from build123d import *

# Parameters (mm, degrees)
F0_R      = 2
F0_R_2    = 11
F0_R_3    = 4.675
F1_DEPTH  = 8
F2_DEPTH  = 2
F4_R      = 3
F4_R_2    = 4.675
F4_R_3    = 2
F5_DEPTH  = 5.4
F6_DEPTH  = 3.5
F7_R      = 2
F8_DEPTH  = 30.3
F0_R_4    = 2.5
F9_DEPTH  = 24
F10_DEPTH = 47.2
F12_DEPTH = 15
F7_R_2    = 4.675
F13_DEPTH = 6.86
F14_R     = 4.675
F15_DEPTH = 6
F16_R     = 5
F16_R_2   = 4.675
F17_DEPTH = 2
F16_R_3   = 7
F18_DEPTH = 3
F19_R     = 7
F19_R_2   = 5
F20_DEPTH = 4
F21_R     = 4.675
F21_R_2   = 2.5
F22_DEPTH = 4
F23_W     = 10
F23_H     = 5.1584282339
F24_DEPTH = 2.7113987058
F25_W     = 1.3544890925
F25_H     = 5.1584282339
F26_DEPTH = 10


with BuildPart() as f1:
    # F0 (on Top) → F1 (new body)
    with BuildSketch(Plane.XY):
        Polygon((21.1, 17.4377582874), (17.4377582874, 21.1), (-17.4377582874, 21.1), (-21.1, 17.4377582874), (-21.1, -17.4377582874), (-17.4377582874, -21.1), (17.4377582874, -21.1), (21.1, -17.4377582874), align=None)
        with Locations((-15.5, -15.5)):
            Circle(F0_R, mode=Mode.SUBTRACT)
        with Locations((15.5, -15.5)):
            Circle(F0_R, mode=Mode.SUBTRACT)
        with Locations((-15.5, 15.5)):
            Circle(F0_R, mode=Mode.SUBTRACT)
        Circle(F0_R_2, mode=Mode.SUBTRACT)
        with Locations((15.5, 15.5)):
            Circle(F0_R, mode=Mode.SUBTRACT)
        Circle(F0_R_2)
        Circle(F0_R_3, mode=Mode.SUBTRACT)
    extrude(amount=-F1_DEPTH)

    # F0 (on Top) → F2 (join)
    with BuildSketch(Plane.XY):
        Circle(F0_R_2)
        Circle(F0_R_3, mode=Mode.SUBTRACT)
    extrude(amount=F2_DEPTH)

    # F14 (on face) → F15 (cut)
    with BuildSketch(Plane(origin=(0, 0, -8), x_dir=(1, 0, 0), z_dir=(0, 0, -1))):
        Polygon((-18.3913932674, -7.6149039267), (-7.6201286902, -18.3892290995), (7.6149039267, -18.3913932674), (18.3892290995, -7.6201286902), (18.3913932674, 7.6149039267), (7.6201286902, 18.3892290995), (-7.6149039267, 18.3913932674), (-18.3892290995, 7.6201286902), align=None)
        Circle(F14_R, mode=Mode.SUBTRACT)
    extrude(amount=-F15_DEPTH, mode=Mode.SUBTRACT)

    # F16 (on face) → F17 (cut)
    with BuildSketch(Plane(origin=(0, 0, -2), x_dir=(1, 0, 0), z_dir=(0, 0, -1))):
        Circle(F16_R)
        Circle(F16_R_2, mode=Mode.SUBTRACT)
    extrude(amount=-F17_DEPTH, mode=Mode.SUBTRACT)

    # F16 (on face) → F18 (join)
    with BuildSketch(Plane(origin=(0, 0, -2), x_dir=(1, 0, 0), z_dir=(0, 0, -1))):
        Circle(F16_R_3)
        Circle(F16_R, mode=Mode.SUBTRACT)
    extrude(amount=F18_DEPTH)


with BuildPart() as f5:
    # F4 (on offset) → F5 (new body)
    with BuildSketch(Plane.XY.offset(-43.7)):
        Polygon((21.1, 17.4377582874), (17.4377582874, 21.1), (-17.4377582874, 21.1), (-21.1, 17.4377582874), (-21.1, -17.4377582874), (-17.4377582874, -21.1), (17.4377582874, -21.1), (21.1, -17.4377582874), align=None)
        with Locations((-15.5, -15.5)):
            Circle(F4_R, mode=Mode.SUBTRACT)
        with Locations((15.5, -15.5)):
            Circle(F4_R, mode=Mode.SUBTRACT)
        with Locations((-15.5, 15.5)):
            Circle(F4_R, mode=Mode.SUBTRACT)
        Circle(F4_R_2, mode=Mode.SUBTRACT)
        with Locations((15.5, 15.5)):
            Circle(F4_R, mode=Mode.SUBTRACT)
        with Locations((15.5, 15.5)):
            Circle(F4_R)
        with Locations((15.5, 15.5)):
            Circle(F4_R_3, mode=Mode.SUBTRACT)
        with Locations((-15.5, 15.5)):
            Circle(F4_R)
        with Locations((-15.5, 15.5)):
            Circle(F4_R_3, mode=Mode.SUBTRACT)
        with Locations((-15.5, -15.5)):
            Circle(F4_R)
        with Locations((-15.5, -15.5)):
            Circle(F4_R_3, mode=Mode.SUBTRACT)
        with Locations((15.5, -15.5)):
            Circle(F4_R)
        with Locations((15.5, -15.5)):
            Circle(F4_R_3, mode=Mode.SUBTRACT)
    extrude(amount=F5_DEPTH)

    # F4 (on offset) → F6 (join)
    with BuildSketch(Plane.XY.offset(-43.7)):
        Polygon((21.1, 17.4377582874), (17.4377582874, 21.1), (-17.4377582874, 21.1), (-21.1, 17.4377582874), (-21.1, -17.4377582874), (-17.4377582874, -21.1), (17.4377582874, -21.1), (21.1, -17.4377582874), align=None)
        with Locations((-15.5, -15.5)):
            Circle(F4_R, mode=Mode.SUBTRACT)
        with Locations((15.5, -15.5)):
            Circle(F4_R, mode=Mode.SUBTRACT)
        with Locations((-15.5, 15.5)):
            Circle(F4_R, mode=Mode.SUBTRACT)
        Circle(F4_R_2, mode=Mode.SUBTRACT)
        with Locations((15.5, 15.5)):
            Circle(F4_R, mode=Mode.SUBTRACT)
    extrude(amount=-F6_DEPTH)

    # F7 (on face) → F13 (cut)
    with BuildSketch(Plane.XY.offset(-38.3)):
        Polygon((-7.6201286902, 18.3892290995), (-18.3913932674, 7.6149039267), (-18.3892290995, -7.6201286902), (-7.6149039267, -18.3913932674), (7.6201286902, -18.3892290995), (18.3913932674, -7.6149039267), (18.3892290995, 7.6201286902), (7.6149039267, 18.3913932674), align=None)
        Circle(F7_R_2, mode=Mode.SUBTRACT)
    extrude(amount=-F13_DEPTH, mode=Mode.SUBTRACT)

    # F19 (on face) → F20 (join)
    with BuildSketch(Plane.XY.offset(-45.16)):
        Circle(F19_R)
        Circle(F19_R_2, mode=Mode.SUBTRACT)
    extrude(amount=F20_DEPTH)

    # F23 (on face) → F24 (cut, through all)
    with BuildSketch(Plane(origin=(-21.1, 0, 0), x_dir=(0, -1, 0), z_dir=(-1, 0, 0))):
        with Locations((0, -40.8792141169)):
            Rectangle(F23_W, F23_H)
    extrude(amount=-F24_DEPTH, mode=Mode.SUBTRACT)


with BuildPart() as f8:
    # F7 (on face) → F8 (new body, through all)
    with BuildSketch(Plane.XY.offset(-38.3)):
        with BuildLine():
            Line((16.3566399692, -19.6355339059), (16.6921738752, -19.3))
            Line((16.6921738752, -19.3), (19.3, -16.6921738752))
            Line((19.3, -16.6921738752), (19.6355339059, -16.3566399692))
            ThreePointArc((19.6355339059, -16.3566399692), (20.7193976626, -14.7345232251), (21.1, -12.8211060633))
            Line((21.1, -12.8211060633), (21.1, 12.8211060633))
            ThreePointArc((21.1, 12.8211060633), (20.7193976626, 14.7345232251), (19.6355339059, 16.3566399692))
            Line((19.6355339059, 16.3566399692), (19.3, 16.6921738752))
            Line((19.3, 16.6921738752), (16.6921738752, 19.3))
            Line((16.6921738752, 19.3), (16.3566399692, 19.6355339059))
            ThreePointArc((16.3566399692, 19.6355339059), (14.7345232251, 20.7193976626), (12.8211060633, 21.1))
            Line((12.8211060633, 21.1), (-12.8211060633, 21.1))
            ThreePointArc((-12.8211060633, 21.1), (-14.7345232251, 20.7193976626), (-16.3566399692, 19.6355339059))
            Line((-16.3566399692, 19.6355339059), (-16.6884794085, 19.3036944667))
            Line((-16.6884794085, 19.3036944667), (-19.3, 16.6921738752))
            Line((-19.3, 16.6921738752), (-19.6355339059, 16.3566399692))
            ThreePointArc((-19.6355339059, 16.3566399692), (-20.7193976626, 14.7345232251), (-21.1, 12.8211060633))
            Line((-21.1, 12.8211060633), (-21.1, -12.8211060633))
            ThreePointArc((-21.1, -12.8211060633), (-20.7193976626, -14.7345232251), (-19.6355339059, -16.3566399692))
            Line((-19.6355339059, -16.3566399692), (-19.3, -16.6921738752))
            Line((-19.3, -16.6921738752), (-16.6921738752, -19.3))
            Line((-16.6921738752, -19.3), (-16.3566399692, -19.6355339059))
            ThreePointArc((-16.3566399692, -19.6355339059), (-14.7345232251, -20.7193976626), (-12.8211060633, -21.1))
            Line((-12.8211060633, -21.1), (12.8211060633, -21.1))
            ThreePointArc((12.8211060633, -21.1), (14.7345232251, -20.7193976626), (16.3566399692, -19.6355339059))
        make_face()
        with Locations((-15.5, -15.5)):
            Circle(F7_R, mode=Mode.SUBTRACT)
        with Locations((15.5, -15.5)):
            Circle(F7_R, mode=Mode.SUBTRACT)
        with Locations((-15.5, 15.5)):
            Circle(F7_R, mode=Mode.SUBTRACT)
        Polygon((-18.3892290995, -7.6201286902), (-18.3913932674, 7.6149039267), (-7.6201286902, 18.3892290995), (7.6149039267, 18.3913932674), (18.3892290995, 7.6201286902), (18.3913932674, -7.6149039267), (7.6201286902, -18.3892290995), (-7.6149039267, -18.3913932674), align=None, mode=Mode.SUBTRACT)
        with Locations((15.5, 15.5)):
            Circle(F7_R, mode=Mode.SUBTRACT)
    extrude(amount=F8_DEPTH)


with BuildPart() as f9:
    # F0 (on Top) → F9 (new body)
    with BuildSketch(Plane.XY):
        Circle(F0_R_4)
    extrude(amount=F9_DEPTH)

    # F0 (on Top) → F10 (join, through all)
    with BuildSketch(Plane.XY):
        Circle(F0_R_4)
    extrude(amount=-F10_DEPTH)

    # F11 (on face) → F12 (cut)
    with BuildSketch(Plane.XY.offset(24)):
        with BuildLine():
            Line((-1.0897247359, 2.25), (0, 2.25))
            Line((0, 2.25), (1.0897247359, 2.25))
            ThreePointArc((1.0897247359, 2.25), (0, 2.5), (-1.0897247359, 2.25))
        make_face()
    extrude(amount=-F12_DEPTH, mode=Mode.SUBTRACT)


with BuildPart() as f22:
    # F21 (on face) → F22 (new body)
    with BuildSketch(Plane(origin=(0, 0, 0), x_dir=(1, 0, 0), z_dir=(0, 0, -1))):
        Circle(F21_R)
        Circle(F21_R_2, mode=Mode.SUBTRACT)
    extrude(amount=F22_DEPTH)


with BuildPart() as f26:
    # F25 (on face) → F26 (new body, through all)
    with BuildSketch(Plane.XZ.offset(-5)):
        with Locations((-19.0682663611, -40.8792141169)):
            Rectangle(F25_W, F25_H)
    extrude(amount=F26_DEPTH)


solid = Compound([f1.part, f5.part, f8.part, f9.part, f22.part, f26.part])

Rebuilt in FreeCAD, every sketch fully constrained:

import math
import FreeCAD as App
import Part
import Sketcher

V = App.Vector
Q = App.Units.Quantity


def add_polygon(sketch, points):
    """Adds a closed chain of lines whose ends are joined by coincident constraints."""
    first, n = sketch.GeometryCount, len(points)
    for a, b in zip(points, points[1:] + points[:1]):
        sketch.addGeometry(Part.LineSegment(App.Vector(*a, 0), App.Vector(*b, 0)), False)
    for i in range(n):
        sketch.addConstraint(Sketcher.Constraint("Coincident", first + i, 2, first + (i + 1) % n, 1))

doc = App.newDocument("Part")
params = doc.addObject("Spreadsheet::Sheet", "Params")
for row, (alias, value) in enumerate([
    ("sketch1_diameter", "4 mm"),
    ("sketch1_diameter2", "9.35 mm"),
    ("pad1_length", "8 mm"),
    ("sketch2_diameter", "22 mm"),
    ("sketch2_diameter2", "9.35 mm"),
    ("pad2_length", "2 mm"),
    ("sketch3_diameter", "9.35 mm"),
    ("pocket1_length", "6 mm"),
    ("sketch4_diameter", "10 mm"),
    ("sketch4_diameter2", "9.35 mm"),
    ("pocket2_length", "2 mm"),
    ("sketch5_diameter", "14 mm"),
    ("sketch5_diameter2", "10 mm"),
    ("pad3_length", "3 mm"),
    ("sketch6_diameter", "4 mm"),
    ("sketch6_diameter2", "9.35 mm"),
    ("pad4_length", "5.4 mm"),
    ("sketch7_diameter", "6 mm"),
    ("sketch7_diameter2", "9.35 mm"),
    ("pad5_length", "3.5 mm"),
    ("sketch8_diameter", "9.35 mm"),
    ("pocket3_length", "6.86 mm"),
    ("sketch9_diameter", "14 mm"),
    ("sketch9_diameter2", "10 mm"),
    ("pad6_length", "4 mm"),
    ("sketch10_width", "10 mm"),
    ("pocket4_length", "2.711399 mm"),
    ("sketch11_diameter", "4 mm"),
    ("sketch11_radius", "5 mm"),
    ("pad7_length", "30.3 mm"),
    ("sketch12_diameter", "5 mm"),
    ("pad8_length", "24 mm"),
    ("sketch13_diameter", "5 mm"),
    ("pad9_length", "47.2 mm"),
    ("sketch14_radius", "2.5 mm"),
    ("pocket5_length", "15 mm"),
    ("sketch15_diameter", "5 mm"),
    ("sketch15_diameter2", "9.35 mm"),
    ("pad10_length", "4 mm"),
    ("pad11_length", "10 mm"),
], start=1):
    params.set(f"A{row}", alias)
    params.set(f"B{row}", "=" + value)
    params.setAlias(f"B{row}", alias)

body = doc.addObject("PartDesign::Body", "Body")

# Sketch on XY plane
sketch1 = body.newObject("Sketcher::SketchObject", "Sketch")
sketch1.AttachmentSupport = (doc.getObject("XY_Plane"), [""])
sketch1.MapMode = "FlatFace"
add_polygon(sketch1, [(21.1, 17.4), (17.4, 21.1), (-17.4, 21.1), (-21.1, 17.4), (-21.1, -17.4), (-17.4, -21.1), (17.4, -21.1), (21.1, -17.4)])  # lines 0-7
sketch1.addGeometry(Part.Circle(V(-15.5, -15.5, 0), V(0, 0, 1), 2), False)  # 8
sketch1.addGeometry(Part.Circle(V(15.5, -15.5, 0), V(0, 0, 1), 2), False)  # 9
sketch1.addGeometry(Part.Circle(V(-15.5, 15.5, 0), V(0, 0, 1), 2), False)  # 10
sketch1.addGeometry(Part.Circle(V(0, 0, 0), V(0, 0, 1), 4.7), False)  # 11
sketch1.addGeometry(Part.Circle(V(15.5, 15.5, 0), V(0, 0, 1), 2), False)  # 12
sketch1.addConstraint(Sketcher.Constraint("Horizontal", 1))
sketch1.addConstraint(Sketcher.Constraint("Vertical", 3))
sketch1.addConstraint(Sketcher.Constraint("Horizontal", 5))
sketch1.addConstraint(Sketcher.Constraint("Vertical", 7))
sketch1.addConstraint(Sketcher.Constraint("Coincident", 11, 3, -1, 1))
sketch1.addConstraint(Sketcher.Constraint("Equal", 8, 9))
sketch1.addConstraint(Sketcher.Constraint("Equal", 9, 10))
sketch1.addConstraint(Sketcher.Constraint("Equal", 10, 12))
sketch1.addConstraint(Sketcher.Constraint("Symmetric", 9, 3, 10, 3, -1, 1))
sketch1.addConstraint(Sketcher.Constraint("Symmetric", 8, 3, 12, 3, -1, 1))
sketch1.addConstraint(Sketcher.Constraint("Symmetric", 0, 2, 4, 2, -1, 1))
sketch1.addConstraint(Sketcher.Constraint("Symmetric", 2, 2, 6, 2, -1, 1))
sketch1.addConstraint(Sketcher.Constraint("Symmetric", 8, 3, 9, 3, -2))
sketch1.addConstraint(Sketcher.Constraint("Perpendicular", 0, 2))
sketch1.addConstraint(Sketcher.Constraint("Perpendicular", 2, 4))
sketch1.addConstraint(Sketcher.Constraint("Perpendicular", 4, 6))
sketch1.addConstraint(Sketcher.Constraint("Horizontal", 3, 2, 6, 2))
sketch1.addConstraint(Sketcher.Constraint("Vertical", 1, 2, 4, 2))
sketch1.addConstraint(Sketcher.Constraint("Equal", 5, 3))
sketch1.addConstraint(Sketcher.Constraint("Diameter", 8, Q("4 mm")))
sketch1.addConstraint(Sketcher.Constraint("Diameter", 11, Q("9.35 mm")))
sketch1.addConstraint(Sketcher.Constraint("DistanceX", 8, 3, 9, 3, Q("31 mm")))
sketch1.addConstraint(Sketcher.Constraint("DistanceY", 8, 3, 10, 3, Q("31 mm")))
sketch1.addConstraint(Sketcher.Constraint("DistanceY", -1, 1, 0, 2, Q("21.1 mm")))
sketch1.addConstraint(Sketcher.Constraint("Distance", 0, Q("5.179192 mm")))
sketch1.setExpression("Constraints[27]", "Params.sketch1_diameter")
sketch1.setExpression("Constraints[28]", "Params.sketch1_diameter2")
pad1 = body.newObject("PartDesign::Pad", "Pad")
pad1.Profile = sketch1
pad1.setExpression("Length", "Params.pad1_length")
pad1.Reversed = True

# Sketch on XY plane
sketch2 = body.newObject("Sketcher::SketchObject", "Sketch001")
sketch2.AttachmentSupport = (doc.getObject("XY_Plane"), [""])
sketch2.MapMode = "FlatFace"
sketch2.addGeometry(Part.Circle(V(0, 0, 0), V(0, 0, 1), 11), False)
sketch2.addGeometry(Part.Circle(V(0, 0, 0), V(0, 0, 1), 4.7), False)
sketch2.addConstraint(Sketcher.Constraint("Coincident", 0, 3, -1, 1))
sketch2.addConstraint(Sketcher.Constraint("Coincident", 1, 3, -1, 1))
sketch2.addConstraint(Sketcher.Constraint("Diameter", 0, Q("22 mm")))
sketch2.addConstraint(Sketcher.Constraint("Diameter", 1, Q("9.35 mm")))
sketch2.setExpression("Constraints[2]", "Params.sketch2_diameter")
sketch2.setExpression("Constraints[3]", "Params.sketch2_diameter2")
pad2 = body.newObject("PartDesign::Pad", "Pad001")
pad2.Profile = sketch2
pad2.setExpression("Length", "Params.pad2_length")

# Sketch on XY plane
sketch3 = body.newObject("Sketcher::SketchObject", "Sketch002")
sketch3.AttachmentSupport = (doc.getObject("XY_Plane"), [""])
sketch3.MapMode = "FlatFace"
sketch3.AttachmentOffset = App.Placement(V(0, 0, -8), App.Rotation())
add_polygon(sketch3, [(-18.4, 7.6), (-7.6, 18.4), (7.6, 18.4), (18.4, 7.6), (18.4, -7.6), (7.6, -18.4), (-7.6, -18.4), (-18.4, -7.6)])  # lines 0-7
sketch3.addGeometry(Part.Circle(V(0, 0, 0), V(0, 0, 1), 4.7), False)  # 8
sketch3.addConstraint(Sketcher.Constraint("Coincident", 8, 3, -1, 1))
sketch3.addConstraint(Sketcher.Constraint("Symmetric", 0, 2, 4, 2, -1, 1))
sketch3.addConstraint(Sketcher.Constraint("Symmetric", 1, 2, 5, 2, -1, 1))
sketch3.addConstraint(Sketcher.Constraint("Symmetric", 2, 2, 6, 2, -1, 1))
sketch3.addConstraint(Sketcher.Constraint("Symmetric", 3, 2, 7, 2, -1, 1))
sketch3.addConstraint(Sketcher.Constraint("Perpendicular", 0, 2))
sketch3.addConstraint(Sketcher.Constraint("Perpendicular", 1, 3))
sketch3.addConstraint(Sketcher.Constraint("Equal", 0, 1))
sketch3.addConstraint(Sketcher.Constraint("Equal", 1, 2))
sketch3.addConstraint(Sketcher.Constraint("Equal", 2, 3))
sketch3.addConstraint(Sketcher.Constraint("Diameter", 8, Q("9.35 mm")))
sketch3.addConstraint(Sketcher.Constraint("DistanceY", 2, 2, 0, 2, Q("10.7691 mm")))
sketch3.addConstraint(Sketcher.Constraint("DistanceX", 0, 2, -1, 1, Q("7.620129 mm")))
sketch3.addConstraint(Sketcher.Constraint("DistanceX", 1, 2, 3, 2, Q("10.776489 mm")))
sketch3.setExpression("Constraints[18]", "Params.sketch3_diameter")
pocket1 = body.newObject("PartDesign::Pocket", "Pocket")
pocket1.Profile = sketch3
pocket1.setExpression("Length", "Params.pocket1_length")
pocket1.Reversed = True

# Sketch on XY plane
sketch4 = body.newObject("Sketcher::SketchObject", "Sketch003")
sketch4.AttachmentSupport = (doc.getObject("XY_Plane"), [""])
sketch4.MapMode = "FlatFace"
sketch4.AttachmentOffset = App.Placement(V(0, 0, -2), App.Rotation())
sketch4.addGeometry(Part.Circle(V(0, 0, 0), V(0, 0, 1), 5), False)
sketch4.addGeometry(Part.Circle(V(0, 0, 0), V(0, 0, 1), 4.7), False)
sketch4.addConstraint(Sketcher.Constraint("Coincident", 0, 3, -1, 1))
sketch4.addConstraint(Sketcher.Constraint("Coincident", 1, 3, -1, 1))
sketch4.addConstraint(Sketcher.Constraint("Diameter", 0, Q("10 mm")))
sketch4.addConstraint(Sketcher.Constraint("Diameter", 1, Q("9.35 mm")))
sketch4.setExpression("Constraints[2]", "Params.sketch4_diameter")
sketch4.setExpression("Constraints[3]", "Params.sketch4_diameter2")
pocket2 = body.newObject("PartDesign::Pocket", "Pocket001")
pocket2.Profile = sketch4
pocket2.setExpression("Length", "Params.pocket2_length")
pocket2.Reversed = True

# Sketch on XY plane
sketch5 = body.newObject("Sketcher::SketchObject", "Sketch004")
sketch5.AttachmentSupport = (doc.getObject("XY_Plane"), [""])
sketch5.MapMode = "FlatFace"
sketch5.AttachmentOffset = App.Placement(V(0, 0, -2), App.Rotation())
sketch5.addGeometry(Part.Circle(V(0, 0, 0), V(0, 0, 1), 7), False)
sketch5.addGeometry(Part.Circle(V(0, 0, 0), V(0, 0, 1), 5), False)
sketch5.addConstraint(Sketcher.Constraint("Coincident", 0, 3, -1, 1))
sketch5.addConstraint(Sketcher.Constraint("Coincident", 1, 3, -1, 1))
sketch5.addConstraint(Sketcher.Constraint("Diameter", 0, Q("14 mm")))
sketch5.addConstraint(Sketcher.Constraint("Diameter", 1, Q("10 mm")))
sketch5.setExpression("Constraints[2]", "Params.sketch5_diameter")
sketch5.setExpression("Constraints[3]", "Params.sketch5_diameter2")
pad3 = body.newObject("PartDesign::Pad", "Pad002")
pad3.Profile = sketch5
pad3.setExpression("Length", "Params.pad3_length")
pad3.Reversed = True
body2 = doc.addObject("PartDesign::Body", "Body001")

# Sketch on XY plane
sketch6 = body2.newObject("Sketcher::SketchObject", "Sketch005")
sketch6.AttachmentSupport = (doc.getObject("XY_Plane001"), [""])
sketch6.MapMode = "FlatFace"
sketch6.AttachmentOffset = App.Placement(V(0, 0, -43.7), App.Rotation())
add_polygon(sketch6, [(21.1, 17.4), (17.4, 21.1), (-17.4, 21.1), (-21.1, 17.4), (-21.1, -17.4), (-17.4, -21.1), (17.4, -21.1), (21.1, -17.4)])  # lines 0-7
sketch6.addGeometry(Part.Circle(V(-15.5, -15.5, 0), V(0, 0, 1), 2), False)  # 8
sketch6.addGeometry(Part.Circle(V(15.5, -15.5, 0), V(0, 0, 1), 2), False)  # 9
sketch6.addGeometry(Part.Circle(V(-15.5, 15.5, 0), V(0, 0, 1), 2), False)  # 10
sketch6.addGeometry(Part.Circle(V(0, 0, 0), V(0, 0, 1), 4.7), False)  # 11
sketch6.addGeometry(Part.Circle(V(15.5, 15.5, 0), V(0, 0, 1), 2), False)  # 12
sketch6.addConstraint(Sketcher.Constraint("Horizontal", 1))
sketch6.addConstraint(Sketcher.Constraint("Vertical", 3))
sketch6.addConstraint(Sketcher.Constraint("Horizontal", 5))
sketch6.addConstraint(Sketcher.Constraint("Vertical", 7))
sketch6.addConstraint(Sketcher.Constraint("Coincident", 11, 3, -1, 1))
sketch6.addConstraint(Sketcher.Constraint("Equal", 8, 9))
sketch6.addConstraint(Sketcher.Constraint("Equal", 9, 10))
sketch6.addConstraint(Sketcher.Constraint("Equal", 10, 12))
sketch6.addConstraint(Sketcher.Constraint("Symmetric", 9, 3, 10, 3, -1, 1))
sketch6.addConstraint(Sketcher.Constraint("Symmetric", 8, 3, 12, 3, -1, 1))
sketch6.addConstraint(Sketcher.Constraint("Symmetric", 0, 2, 4, 2, -1, 1))
sketch6.addConstraint(Sketcher.Constraint("Symmetric", 2, 2, 6, 2, -1, 1))
sketch6.addConstraint(Sketcher.Constraint("Symmetric", 8, 3, 9, 3, -2))
sketch6.addConstraint(Sketcher.Constraint("Perpendicular", 0, 2))
sketch6.addConstraint(Sketcher.Constraint("Perpendicular", 2, 4))
sketch6.addConstraint(Sketcher.Constraint("Perpendicular", 4, 6))
sketch6.addConstraint(Sketcher.Constraint("Horizontal", 3, 2, 6, 2))
sketch6.addConstraint(Sketcher.Constraint("Vertical", 1, 2, 4, 2))
sketch6.addConstraint(Sketcher.Constraint("Equal", 5, 3))
sketch6.addConstraint(Sketcher.Constraint("Diameter", 8, Q("4 mm")))
sketch6.addConstraint(Sketcher.Constraint("Diameter", 11, Q("9.35 mm")))
sketch6.addConstraint(Sketcher.Constraint("DistanceX", 8, 3, 9, 3, Q("31 mm")))
sketch6.addConstraint(Sketcher.Constraint("DistanceY", 8, 3, 10, 3, Q("31 mm")))
sketch6.addConstraint(Sketcher.Constraint("DistanceY", -1, 1, 0, 2, Q("21.1 mm")))
sketch6.addConstraint(Sketcher.Constraint("Distance", 0, Q("5.179192 mm")))
sketch6.setExpression("Constraints[27]", "Params.sketch6_diameter")
sketch6.setExpression("Constraints[28]", "Params.sketch6_diameter2")
pad4 = body2.newObject("PartDesign::Pad", "Pad003")
pad4.Profile = sketch6
pad4.setExpression("Length", "Params.pad4_length")

# Sketch on XY plane
sketch7 = body2.newObject("Sketcher::SketchObject", "Sketch006")
sketch7.AttachmentSupport = (doc.getObject("XY_Plane001"), [""])
sketch7.MapMode = "FlatFace"
sketch7.AttachmentOffset = App.Placement(V(0, 0, -43.7), App.Rotation())
add_polygon(sketch7, [(21.1, 17.4), (17.4, 21.1), (-17.4, 21.1), (-21.1, 17.4), (-21.1, -17.4), (-17.4, -21.1), (17.4, -21.1), (21.1, -17.4)])  # lines 0-7
sketch7.addGeometry(Part.Circle(V(-15.5, -15.5, 0), V(0, 0, 1), 3), False)  # 8
sketch7.addGeometry(Part.Circle(V(15.5, -15.5, 0), V(0, 0, 1), 3), False)  # 9
sketch7.addGeometry(Part.Circle(V(-15.5, 15.5, 0), V(0, 0, 1), 3), False)  # 10
sketch7.addGeometry(Part.Circle(V(0, 0, 0), V(0, 0, 1), 4.7), False)  # 11
sketch7.addGeometry(Part.Circle(V(15.5, 15.5, 0), V(0, 0, 1), 3), False)  # 12
sketch7.addConstraint(Sketcher.Constraint("Horizontal", 1))
sketch7.addConstraint(Sketcher.Constraint("Vertical", 3))
sketch7.addConstraint(Sketcher.Constraint("Horizontal", 5))
sketch7.addConstraint(Sketcher.Constraint("Vertical", 7))
sketch7.addConstraint(Sketcher.Constraint("Coincident", 11, 3, -1, 1))
sketch7.addConstraint(Sketcher.Constraint("Equal", 8, 9))
sketch7.addConstraint(Sketcher.Constraint("Equal", 9, 10))
sketch7.addConstraint(Sketcher.Constraint("Equal", 10, 12))
sketch7.addConstraint(Sketcher.Constraint("Symmetric", 9, 3, 10, 3, -1, 1))
sketch7.addConstraint(Sketcher.Constraint("Symmetric", 8, 3, 12, 3, -1, 1))
sketch7.addConstraint(Sketcher.Constraint("Symmetric", 0, 2, 4, 2, -1, 1))
sketch7.addConstraint(Sketcher.Constraint("Symmetric", 2, 2, 6, 2, -1, 1))
sketch7.addConstraint(Sketcher.Constraint("Symmetric", 8, 3, 9, 3, -2))
sketch7.addConstraint(Sketcher.Constraint("Perpendicular", 0, 2))
sketch7.addConstraint(Sketcher.Constraint("Perpendicular", 2, 4))
sketch7.addConstraint(Sketcher.Constraint("Perpendicular", 4, 6))
sketch7.addConstraint(Sketcher.Constraint("Horizontal", 3, 2, 6, 2))
sketch7.addConstraint(Sketcher.Constraint("Vertical", 1, 2, 4, 2))
sketch7.addConstraint(Sketcher.Constraint("Equal", 5, 3))
sketch7.addConstraint(Sketcher.Constraint("Diameter", 8, Q("6 mm")))
sketch7.addConstraint(Sketcher.Constraint("Diameter", 11, Q("9.35 mm")))
sketch7.addConstraint(Sketcher.Constraint("DistanceX", 8, 3, 9, 3, Q("31 mm")))
sketch7.addConstraint(Sketcher.Constraint("DistanceY", 8, 3, 10, 3, Q("31 mm")))
sketch7.addConstraint(Sketcher.Constraint("DistanceY", -1, 1, 0, 2, Q("21.1 mm")))
sketch7.addConstraint(Sketcher.Constraint("Distance", 0, Q("5.179192 mm")))
sketch7.setExpression("Constraints[27]", "Params.sketch7_diameter")
sketch7.setExpression("Constraints[28]", "Params.sketch7_diameter2")
pad5 = body2.newObject("PartDesign::Pad", "Pad004")
pad5.Profile = sketch7
pad5.setExpression("Length", "Params.pad5_length")
pad5.Reversed = True

# Sketch on XY plane
sketch8 = body2.newObject("Sketcher::SketchObject", "Sketch007")
sketch8.AttachmentSupport = (doc.getObject("XY_Plane001"), [""])
sketch8.MapMode = "FlatFace"
sketch8.AttachmentOffset = App.Placement(V(0, 0, -38.3), App.Rotation())
add_polygon(sketch8, [(-7.6, 18.4), (-18.4, 7.6), (-18.4, -7.6), (-7.6, -18.4), (7.6, -18.4), (18.4, -7.6), (18.4, 7.6), (7.6, 18.4)])  # lines 0-7
sketch8.addGeometry(Part.Circle(V(0, 0, 0), V(0, 0, 1), 4.7), False)  # 8
sketch8.addConstraint(Sketcher.Constraint("Coincident", 8, 3, -1, 1))
sketch8.addConstraint(Sketcher.Constraint("Symmetric", 0, 2, 4, 2, -1, 1))
sketch8.addConstraint(Sketcher.Constraint("Symmetric", 1, 2, 5, 2, -1, 1))
sketch8.addConstraint(Sketcher.Constraint("Symmetric", 2, 2, 6, 2, -1, 1))
sketch8.addConstraint(Sketcher.Constraint("Symmetric", 3, 2, 7, 2, -1, 1))
sketch8.addConstraint(Sketcher.Constraint("Perpendicular", 0, 2))
sketch8.addConstraint(Sketcher.Constraint("Perpendicular", 1, 3))
sketch8.addConstraint(Sketcher.Constraint("Equal", 0, 1))
sketch8.addConstraint(Sketcher.Constraint("Equal", 1, 2))
sketch8.addConstraint(Sketcher.Constraint("Equal", 2, 3))
sketch8.addConstraint(Sketcher.Constraint("Diameter", 8, Q("9.35 mm")))
sketch8.addConstraint(Sketcher.Constraint("DistanceY", 3, 2, 1, 2, Q("10.7691 mm")))
sketch8.addConstraint(Sketcher.Constraint("DistanceX", 1, 2, -1, 1, Q("18.389229 mm")))
sketch8.addConstraint(Sketcher.Constraint("DistanceX", 0, 2, 2, 2, Q("10.776489 mm")))
sketch8.setExpression("Constraints[18]", "Params.sketch8_diameter")
pocket3 = body2.newObject("PartDesign::Pocket", "Pocket002")
pocket3.Profile = sketch8
pocket3.setExpression("Length", "Params.pocket3_length")

# Sketch on XY plane
sketch9 = body2.newObject("Sketcher::SketchObject", "Sketch008")
sketch9.AttachmentSupport = (doc.getObject("XY_Plane001"), [""])
sketch9.MapMode = "FlatFace"
sketch9.AttachmentOffset = App.Placement(V(0, 0, -45.16), App.Rotation())
sketch9.addGeometry(Part.Circle(V(0, 0, 0), V(0, 0, 1), 7), False)
sketch9.addGeometry(Part.Circle(V(0, 0, 0), V(0, 0, 1), 5), False)
sketch9.addConstraint(Sketcher.Constraint("Coincident", 0, 3, -1, 1))
sketch9.addConstraint(Sketcher.Constraint("Coincident", 1, 3, -1, 1))
sketch9.addConstraint(Sketcher.Constraint("Diameter", 0, Q("14 mm")))
sketch9.addConstraint(Sketcher.Constraint("Diameter", 1, Q("10 mm")))
sketch9.setExpression("Constraints[2]", "Params.sketch9_diameter")
sketch9.setExpression("Constraints[3]", "Params.sketch9_diameter2")
pad6 = body2.newObject("PartDesign::Pad", "Pad005")
pad6.Profile = sketch9
pad6.setExpression("Length", "Params.pad6_length")

# Sketch on YZ plane
sketch10 = body2.newObject("Sketcher::SketchObject", "Sketch009")
sketch10.AttachmentSupport = (doc.getObject("YZ_Plane001"), [""])
sketch10.MapMode = "FlatFace"
sketch10.AttachmentOffset = App.Placement(V(0, 0, -21.1), App.Rotation())
add_polygon(sketch10, [(5, -38), (5, -43), (-5, -43), (-5, -38)])  # lines 0-3
sketch10.addConstraint(Sketcher.Constraint("Vertical", 0))
sketch10.addConstraint(Sketcher.Constraint("Horizontal", 1))
sketch10.addConstraint(Sketcher.Constraint("Vertical", 2))
sketch10.addConstraint(Sketcher.Constraint("Horizontal", 3))
sketch10.addConstraint(Sketcher.Constraint("DistanceX", 1, 2, 1, 1, Q("10 mm")))
sketch10.addConstraint(Sketcher.Constraint("DistanceX", -1, 1, 0, 2, Q("5 mm")))
sketch10.addConstraint(Sketcher.Constraint("DistanceY", 2, 2, -1, 1, Q("38.3 mm")))
sketch10.addConstraint(Sketcher.Constraint("DistanceY", 0, 2, 0, 1, Q("5.158428 mm")))
sketch10.setExpression("Constraints[8]", "Params.sketch10_width")
pocket4 = body2.newObject("PartDesign::Pocket", "Pocket003")
pocket4.Profile = sketch10
pocket4.setExpression("Length", "Params.pocket4_length")
pocket4.Reversed = True
body3 = doc.addObject("PartDesign::Body", "Body002")

# Sketch on XY plane
sketch11 = body3.newObject("Sketcher::SketchObject", "Sketch010")
sketch11.AttachmentSupport = (doc.getObject("XY_Plane002"), [""])
sketch11.MapMode = "FlatFace"
sketch11.AttachmentOffset = App.Placement(V(0, 0, -38.3), App.Rotation())
sketch11.addGeometry(Part.LineSegment(V(16.36, -19.64, 0), V(16.69, -19.3, 0)), False)  # 0
sketch11.addGeometry(Part.LineSegment(V(16.69, -19.3, 0), V(19.3, -16.69, 0)), False)  # 1
sketch11.addGeometry(Part.LineSegment(V(19.3, -16.69, 0), V(19.64, -16.36, 0)), False)  # 2
sketch11.addGeometry(Part.ArcOfCircle(Part.Circle(V(16.1, -12.82, 0), V(0, 0, 1), 5), math.radians(-45), math.radians(0)), False)  # 3
sketch11.addGeometry(Part.LineSegment(V(21.1, -12.82, 0), V(21.1, 12.82, 0)), False)  # 4
sketch11.addGeometry(Part.ArcOfCircle(Part.Circle(V(16.1, 12.82, 0), V(0, 0, 1), 5), math.radians(0), math.radians(45)), False)  # 5
sketch11.addGeometry(Part.LineSegment(V(19.64, 16.36, 0), V(19.3, 16.69, 0)), False)  # 6
sketch11.addGeometry(Part.LineSegment(V(19.3, 16.69, 0), V(16.69, 19.3, 0)), False)  # 7
sketch11.addGeometry(Part.LineSegment(V(16.69, 19.3, 0), V(16.36, 19.64, 0)), False)  # 8
sketch11.addGeometry(Part.ArcOfCircle(Part.Circle(V(12.82, 16.1, 0), V(0, 0, 1), 5), math.radians(45), math.radians(90)), False)  # 9
sketch11.addGeometry(Part.LineSegment(V(12.82, 21.1, 0), V(-12.82, 21.1, 0)), False)  # 10
sketch11.addGeometry(Part.ArcOfCircle(Part.Circle(V(-12.82, 16.1, 0), V(0, 0, 1), 5), math.radians(90), math.radians(135)), False)  # 11
sketch11.addGeometry(Part.LineSegment(V(-16.36, 19.64, 0), V(-16.69, 19.3, 0)), False)  # 12
sketch11.addGeometry(Part.LineSegment(V(-16.69, 19.3, 0), V(-19.3, 16.69, 0)), False)  # 13
sketch11.addGeometry(Part.LineSegment(V(-19.3, 16.69, 0), V(-19.64, 16.36, 0)), False)  # 14
sketch11.addGeometry(Part.ArcOfCircle(Part.Circle(V(-16.1, 12.82, 0), V(0, 0, 1), 5), math.radians(135), math.radians(180)), False)  # 15
sketch11.addGeometry(Part.LineSegment(V(-21.1, 12.82, 0), V(-21.1, -12.82, 0)), False)  # 16
sketch11.addGeometry(Part.ArcOfCircle(Part.Circle(V(-16.1, -12.82, 0), V(0, 0, 1), 5), math.radians(180), math.radians(225)), False)  # 17
sketch11.addGeometry(Part.LineSegment(V(-19.64, -16.36, 0), V(-19.3, -16.69, 0)), False)  # 18
sketch11.addGeometry(Part.LineSegment(V(-19.3, -16.69, 0), V(-16.69, -19.3, 0)), False)  # 19
sketch11.addGeometry(Part.LineSegment(V(-16.69, -19.3, 0), V(-16.36, -19.64, 0)), False)  # 20
sketch11.addGeometry(Part.ArcOfCircle(Part.Circle(V(-12.82, -16.1, 0), V(0, 0, 1), 5), math.radians(-135), math.radians(-90)), False)  # 21
sketch11.addGeometry(Part.LineSegment(V(-12.82, -21.1, 0), V(12.82, -21.1, 0)), False)  # 22
sketch11.addGeometry(Part.ArcOfCircle(Part.Circle(V(12.82, -16.1, 0), V(0, 0, 1), 5), math.radians(-90), math.radians(-45)), False)  # 23
sketch11.addGeometry(Part.Circle(V(-15.5, -15.5, 0), V(0, 0, 1), 2), False)  # 24
add_polygon(sketch11, [(-7.61, -18.39), (-18.39, -7.62), (-18.39, 7.61), (-7.62, 18.39), (7.61, 18.39), (18.39, 7.62), (18.39, -7.61), (7.62, -18.39)])  # lines 25-32
sketch11.addGeometry(Part.Circle(V(15.5, -15.5, 0), V(0, 0, 1), 2), False)  # 33
sketch11.addGeometry(Part.Circle(V(-15.5, 15.5, 0), V(0, 0, 1), 2), False)  # 34
sketch11.addGeometry(Part.Circle(V(15.5, 15.5, 0), V(0, 0, 1), 2), False)  # 35
sketch11.addConstraint(Sketcher.Constraint("Coincident", 0, 2, 1, 1))
sketch11.addConstraint(Sketcher.Constraint("Coincident", 1, 2, 2, 1))
sketch11.addConstraint(Sketcher.Constraint("Tangent", 2, 2, 3, 1))
sketch11.addConstraint(Sketcher.Constraint("Tangent", 3, 2, 4, 1))
sketch11.addConstraint(Sketcher.Constraint("Tangent", 4, 2, 5, 1))
sketch11.addConstraint(Sketcher.Constraint("Tangent", 5, 2, 6, 1))
sketch11.addConstraint(Sketcher.Constraint("Coincident", 6, 2, 7, 1))
sketch11.addConstraint(Sketcher.Constraint("Coincident", 7, 2, 8, 1))
sketch11.addConstraint(Sketcher.Constraint("Tangent", 8, 2, 9, 1))
sketch11.addConstraint(Sketcher.Constraint("Tangent", 9, 2, 10, 1))
sketch11.addConstraint(Sketcher.Constraint("Tangent", 10, 2, 11, 1))
sketch11.addConstraint(Sketcher.Constraint("Tangent", 11, 2, 12, 1))
sketch11.addConstraint(Sketcher.Constraint("Coincident", 12, 2, 13, 1))
sketch11.addConstraint(Sketcher.Constraint("Coincident", 13, 2, 14, 1))
sketch11.addConstraint(Sketcher.Constraint("Tangent", 14, 2, 15, 1))
sketch11.addConstraint(Sketcher.Constraint("Tangent", 15, 2, 16, 1))
sketch11.addConstraint(Sketcher.Constraint("Tangent", 16, 2, 17, 1))
sketch11.addConstraint(Sketcher.Constraint("Tangent", 17, 2, 18, 1))
sketch11.addConstraint(Sketcher.Constraint("Coincident", 18, 2, 19, 1))
sketch11.addConstraint(Sketcher.Constraint("Coincident", 19, 2, 20, 1))
sketch11.addConstraint(Sketcher.Constraint("Tangent", 20, 2, 21, 1))
sketch11.addConstraint(Sketcher.Constraint("Tangent", 21, 2, 22, 1))
sketch11.addConstraint(Sketcher.Constraint("Tangent", 22, 2, 23, 1))
sketch11.addConstraint(Sketcher.Constraint("Tangent", 23, 2, 0, 1))
sketch11.addConstraint(Sketcher.Constraint("Vertical", 4))
sketch11.addConstraint(Sketcher.Constraint("Horizontal", 10))
sketch11.addConstraint(Sketcher.Constraint("Vertical", 16))
sketch11.addConstraint(Sketcher.Constraint("Horizontal", 22))
sketch11.addConstraint(Sketcher.Constraint("Equal", 3, 5))
sketch11.addConstraint(Sketcher.Constraint("Equal", 5, 9))
sketch11.addConstraint(Sketcher.Constraint("Equal", 9, 11))
sketch11.addConstraint(Sketcher.Constraint("Equal", 11, 15))
sketch11.addConstraint(Sketcher.Constraint("Equal", 15, 17))
sketch11.addConstraint(Sketcher.Constraint("Equal", 17, 21))
sketch11.addConstraint(Sketcher.Constraint("Equal", 21, 23))
sketch11.addConstraint(Sketcher.Constraint("Equal", 24, 33))
sketch11.addConstraint(Sketcher.Constraint("Equal", 33, 34))
sketch11.addConstraint(Sketcher.Constraint("Equal", 34, 35))
sketch11.addConstraint(Sketcher.Constraint("Symmetric", 3, 3, 15, 3, -1, 1))
sketch11.addConstraint(Sketcher.Constraint("Symmetric", 9, 3, 21, 3, -1, 1))
sketch11.addConstraint(Sketcher.Constraint("Symmetric", 33, 3, 34, 3, -1, 1))
sketch11.addConstraint(Sketcher.Constraint("Symmetric", 24, 3, 35, 3, -1, 1))
sketch11.addConstraint(Sketcher.Constraint("Symmetric", 1, 2, 13, 2, -1, 1))
sketch11.addConstraint(Sketcher.Constraint("Symmetric", 5, 2, 17, 2, -1, 1))
sketch11.addConstraint(Sketcher.Constraint("Symmetric", 7, 2, 19, 2, -1, 1))
sketch11.addConstraint(Sketcher.Constraint("Symmetric", 11, 2, 23, 2, -1, 1))
sketch11.addConstraint(Sketcher.Constraint("Symmetric", 25, 2, 29, 2, -1, 1))
sketch11.addConstraint(Sketcher.Constraint("Symmetric", 26, 2, 30, 2, -1, 1))
sketch11.addConstraint(Sketcher.Constraint("Symmetric", 27, 2, 31, 2, -1, 1))
sketch11.addConstraint(Sketcher.Constraint("Symmetric", 28, 2, 32, 2, -1, 1))
sketch11.addConstraint(Sketcher.Constraint("Symmetric", 24, 3, 33, 3, -2))
sketch11.addConstraint(Sketcher.Constraint("Symmetric", 8, 2, 11, 2, -2))
sketch11.addConstraint(Sketcher.Constraint("Symmetric", 6, 2, 13, 2, -2))
sketch11.addConstraint(Sketcher.Constraint("Parallel", 0, 1))
sketch11.addConstraint(Sketcher.Constraint("Parallel", 1, 2))
sketch11.addConstraint(Sketcher.Constraint("Perpendicular", 2, 6))
sketch11.addConstraint(Sketcher.Constraint("Parallel", 6, 7))
sketch11.addConstraint(Sketcher.Constraint("Perpendicular", 25, 27))
sketch11.addConstraint(Sketcher.Constraint("Perpendicular", 26, 28))
sketch11.addConstraint(Sketcher.Constraint("Horizontal", 1, 2, 18, 2))
sketch11.addConstraint(Sketcher.Constraint("Horizontal", 0, 2, 19, 2))
sketch11.addConstraint(Sketcher.Constraint("Equal", 22, 4))
sketch11.addConstraint(Sketcher.Constraint("Equal", 0, 2))
sketch11.addConstraint(Sketcher.Constraint("Equal", 25, 26))
sketch11.addConstraint(Sketcher.Constraint("Equal", 26, 27))
sketch11.addConstraint(Sketcher.Constraint("Equal", 27, 28))
sketch11.addConstraint(Sketcher.Constraint("Diameter", 24, Q("4 mm")))
sketch11.addConstraint(Sketcher.Constraint("Radius", 3, Q("5 mm")))
sketch11.addConstraint(Sketcher.Constraint("DistanceX", 24, 3, 33, 3, Q("31 mm")))
sketch11.addConstraint(Sketcher.Constraint("DistanceY", 24, 3, 34, 3, Q("31 mm")))
sketch11.addConstraint(Sketcher.Constraint("DistanceX", -1, 1, 3, 3, Q("16.1 mm")))
sketch11.addConstraint(Sketcher.Constraint("DistanceY", 0, 2, -1, 1, Q("19.3 mm")))
sketch11.addConstraint(Sketcher.Constraint("Distance", 12, Q("0.469292 mm")))
sketch11.addConstraint(Sketcher.Constraint("DistanceX", 10, 2, 10, 1, Q("25.642212 mm")))
sketch11.addConstraint(Sketcher.Constraint("DistanceX", 25, 2, -1, 1, Q("18.389229 mm")))
sketch11.addConstraint(Sketcher.Constraint("DistanceY", 25, 2, -1, 1, Q("7.620129 mm")))
sketch11.addConstraint(Sketcher.Constraint("DistanceX", 14, 2, 26, 2, Q("1.244141 mm")))
sketch11.setExpression("Constraints[74]", "Params.sketch11_diameter")
sketch11.setExpression("Constraints[75]", "Params.sketch11_radius")
pad7 = body3.newObject("PartDesign::Pad", "Pad006")
pad7.Profile = sketch11
pad7.setExpression("Length", "Params.pad7_length")
body4 = doc.addObject("PartDesign::Body", "Body003")

# Sketch on XY plane
sketch12 = body4.newObject("Sketcher::SketchObject", "Sketch011")
sketch12.AttachmentSupport = (doc.getObject("XY_Plane003"), [""])
sketch12.MapMode = "FlatFace"
sketch12.addGeometry(Part.Circle(V(0, 0, 0), V(0, 0, 1), 2.5), False)
sketch12.addConstraint(Sketcher.Constraint("Coincident", 0, 3, -1, 1))
sketch12.addConstraint(Sketcher.Constraint("Diameter", 0, Q("5 mm")))
sketch12.setExpression("Constraints[1]", "Params.sketch12_diameter")
pad8 = body4.newObject("PartDesign::Pad", "Pad007")
pad8.Profile = sketch12
pad8.setExpression("Length", "Params.pad8_length")

# Sketch on XY plane
sketch13 = body4.newObject("Sketcher::SketchObject", "Sketch012")
sketch13.AttachmentSupport = (doc.getObject("XY_Plane003"), [""])
sketch13.MapMode = "FlatFace"
sketch13.addGeometry(Part.Circle(V(0, 0, 0), V(0, 0, 1), 2.5), False)
sketch13.addConstraint(Sketcher.Constraint("Coincident", 0, 3, -1, 1))
sketch13.addConstraint(Sketcher.Constraint("Diameter", 0, Q("5 mm")))
sketch13.setExpression("Constraints[1]", "Params.sketch13_diameter")
pad9 = body4.newObject("PartDesign::Pad", "Pad008")
pad9.Profile = sketch13
pad9.setExpression("Length", "Params.pad9_length")
pad9.Reversed = True

# Sketch on XY plane
sketch14 = body4.newObject("Sketcher::SketchObject", "Sketch013")
sketch14.AttachmentSupport = (doc.getObject("XY_Plane003"), [""])
sketch14.MapMode = "FlatFace"
sketch14.AttachmentOffset = App.Placement(V(0, 0, 24), App.Rotation())
sketch14.addGeometry(Part.LineSegment(V(-1.1, 2.2, 0), V(1.1, 2.2, 0)), False)
sketch14.addGeometry(Part.ArcOfCircle(Part.Circle(V(0, 0, 0), V(0, 0, 1), 2.5), math.radians(64), math.radians(116)), False)
sketch14.addConstraint(Sketcher.Constraint("Coincident", 0, 1, 1, 2))
sketch14.addConstraint(Sketcher.Constraint("Coincident", 1, 1, 0, 2))
sketch14.addConstraint(Sketcher.Constraint("Horizontal", 0))
sketch14.addConstraint(Sketcher.Constraint("Coincident", 1, 3, -1, 1))
sketch14.addConstraint(Sketcher.Constraint("Radius", 1, Q("2.5 mm")))
sketch14.addConstraint(Sketcher.Constraint("DistanceY", -1, 1, 0, 1, Q("2.25 mm")))
sketch14.setExpression("Constraints[4]", "Params.sketch14_radius")
pocket5 = body4.newObject("PartDesign::Pocket", "Pocket004")
pocket5.Profile = sketch14
pocket5.setExpression("Length", "Params.pocket5_length")
body5 = doc.addObject("PartDesign::Body", "Body004")

# Sketch on XY plane
sketch15 = body5.newObject("Sketcher::SketchObject", "Sketch014")
sketch15.AttachmentSupport = (doc.getObject("XY_Plane004"), [""])
sketch15.MapMode = "FlatFace"
sketch15.addGeometry(Part.Circle(V(0, 0, 0), V(0, 0, 1), 4.7), False)
sketch15.addGeometry(Part.Circle(V(0, 0, 0), V(0, 0, 1), 2.5), False)
sketch15.addConstraint(Sketcher.Constraint("Coincident", 0, 3, -1, 1))
sketch15.addConstraint(Sketcher.Constraint("Coincident", 1, 3, -1, 1))
sketch15.addConstraint(Sketcher.Constraint("Diameter", 1, Q("5 mm")))
sketch15.addConstraint(Sketcher.Constraint("Diameter", 0, Q("9.35 mm")))
sketch15.setExpression("Constraints[2]", "Params.sketch15_diameter")
sketch15.setExpression("Constraints[3]", "Params.sketch15_diameter2")
pad10 = body5.newObject("PartDesign::Pad", "Pad009")
pad10.Profile = sketch15
pad10.setExpression("Length", "Params.pad10_length")
pad10.Reversed = True
body6 = doc.addObject("PartDesign::Body", "Body005")

# Sketch on XZ plane
sketch16 = body6.newObject("Sketcher::SketchObject", "Sketch015")
sketch16.AttachmentSupport = (doc.getObject("XZ_Plane005"), [""])
sketch16.MapMode = "FlatFace"
sketch16.AttachmentOffset = App.Placement(V(0, 0, -5), App.Rotation())
add_polygon(sketch16, [(-19.7, -38.3), (-19.7, -43.5), (-18.4, -43.5), (-18.4, -38.3)])  # lines 0-3
sketch16.addConstraint(Sketcher.Constraint("Vertical", 0))
sketch16.addConstraint(Sketcher.Constraint("Horizontal", 1))
sketch16.addConstraint(Sketcher.Constraint("Vertical", 2))
sketch16.addConstraint(Sketcher.Constraint("Horizontal", 3))
sketch16.addConstraint(Sketcher.Constraint("DistanceY", 2, 2, -1, 1, Q("38.3 mm")))
sketch16.addConstraint(Sketcher.Constraint("DistanceX", 1, 1, 1, 2, Q("1.354489 mm")))
sketch16.addConstraint(Sketcher.Constraint("DistanceY", 0, 2, 0, 1, Q("5.158428 mm")))
sketch16.addConstraint(Sketcher.Constraint("DistanceX", 0, 2, -1, 1, Q("19.745511 mm")))
pad11 = body6.newObject("PartDesign::Pad", "Pad010")
pad11.Profile = sketch16
pad11.setExpression("Length", "Params.pad11_length")

doc.recompute()
